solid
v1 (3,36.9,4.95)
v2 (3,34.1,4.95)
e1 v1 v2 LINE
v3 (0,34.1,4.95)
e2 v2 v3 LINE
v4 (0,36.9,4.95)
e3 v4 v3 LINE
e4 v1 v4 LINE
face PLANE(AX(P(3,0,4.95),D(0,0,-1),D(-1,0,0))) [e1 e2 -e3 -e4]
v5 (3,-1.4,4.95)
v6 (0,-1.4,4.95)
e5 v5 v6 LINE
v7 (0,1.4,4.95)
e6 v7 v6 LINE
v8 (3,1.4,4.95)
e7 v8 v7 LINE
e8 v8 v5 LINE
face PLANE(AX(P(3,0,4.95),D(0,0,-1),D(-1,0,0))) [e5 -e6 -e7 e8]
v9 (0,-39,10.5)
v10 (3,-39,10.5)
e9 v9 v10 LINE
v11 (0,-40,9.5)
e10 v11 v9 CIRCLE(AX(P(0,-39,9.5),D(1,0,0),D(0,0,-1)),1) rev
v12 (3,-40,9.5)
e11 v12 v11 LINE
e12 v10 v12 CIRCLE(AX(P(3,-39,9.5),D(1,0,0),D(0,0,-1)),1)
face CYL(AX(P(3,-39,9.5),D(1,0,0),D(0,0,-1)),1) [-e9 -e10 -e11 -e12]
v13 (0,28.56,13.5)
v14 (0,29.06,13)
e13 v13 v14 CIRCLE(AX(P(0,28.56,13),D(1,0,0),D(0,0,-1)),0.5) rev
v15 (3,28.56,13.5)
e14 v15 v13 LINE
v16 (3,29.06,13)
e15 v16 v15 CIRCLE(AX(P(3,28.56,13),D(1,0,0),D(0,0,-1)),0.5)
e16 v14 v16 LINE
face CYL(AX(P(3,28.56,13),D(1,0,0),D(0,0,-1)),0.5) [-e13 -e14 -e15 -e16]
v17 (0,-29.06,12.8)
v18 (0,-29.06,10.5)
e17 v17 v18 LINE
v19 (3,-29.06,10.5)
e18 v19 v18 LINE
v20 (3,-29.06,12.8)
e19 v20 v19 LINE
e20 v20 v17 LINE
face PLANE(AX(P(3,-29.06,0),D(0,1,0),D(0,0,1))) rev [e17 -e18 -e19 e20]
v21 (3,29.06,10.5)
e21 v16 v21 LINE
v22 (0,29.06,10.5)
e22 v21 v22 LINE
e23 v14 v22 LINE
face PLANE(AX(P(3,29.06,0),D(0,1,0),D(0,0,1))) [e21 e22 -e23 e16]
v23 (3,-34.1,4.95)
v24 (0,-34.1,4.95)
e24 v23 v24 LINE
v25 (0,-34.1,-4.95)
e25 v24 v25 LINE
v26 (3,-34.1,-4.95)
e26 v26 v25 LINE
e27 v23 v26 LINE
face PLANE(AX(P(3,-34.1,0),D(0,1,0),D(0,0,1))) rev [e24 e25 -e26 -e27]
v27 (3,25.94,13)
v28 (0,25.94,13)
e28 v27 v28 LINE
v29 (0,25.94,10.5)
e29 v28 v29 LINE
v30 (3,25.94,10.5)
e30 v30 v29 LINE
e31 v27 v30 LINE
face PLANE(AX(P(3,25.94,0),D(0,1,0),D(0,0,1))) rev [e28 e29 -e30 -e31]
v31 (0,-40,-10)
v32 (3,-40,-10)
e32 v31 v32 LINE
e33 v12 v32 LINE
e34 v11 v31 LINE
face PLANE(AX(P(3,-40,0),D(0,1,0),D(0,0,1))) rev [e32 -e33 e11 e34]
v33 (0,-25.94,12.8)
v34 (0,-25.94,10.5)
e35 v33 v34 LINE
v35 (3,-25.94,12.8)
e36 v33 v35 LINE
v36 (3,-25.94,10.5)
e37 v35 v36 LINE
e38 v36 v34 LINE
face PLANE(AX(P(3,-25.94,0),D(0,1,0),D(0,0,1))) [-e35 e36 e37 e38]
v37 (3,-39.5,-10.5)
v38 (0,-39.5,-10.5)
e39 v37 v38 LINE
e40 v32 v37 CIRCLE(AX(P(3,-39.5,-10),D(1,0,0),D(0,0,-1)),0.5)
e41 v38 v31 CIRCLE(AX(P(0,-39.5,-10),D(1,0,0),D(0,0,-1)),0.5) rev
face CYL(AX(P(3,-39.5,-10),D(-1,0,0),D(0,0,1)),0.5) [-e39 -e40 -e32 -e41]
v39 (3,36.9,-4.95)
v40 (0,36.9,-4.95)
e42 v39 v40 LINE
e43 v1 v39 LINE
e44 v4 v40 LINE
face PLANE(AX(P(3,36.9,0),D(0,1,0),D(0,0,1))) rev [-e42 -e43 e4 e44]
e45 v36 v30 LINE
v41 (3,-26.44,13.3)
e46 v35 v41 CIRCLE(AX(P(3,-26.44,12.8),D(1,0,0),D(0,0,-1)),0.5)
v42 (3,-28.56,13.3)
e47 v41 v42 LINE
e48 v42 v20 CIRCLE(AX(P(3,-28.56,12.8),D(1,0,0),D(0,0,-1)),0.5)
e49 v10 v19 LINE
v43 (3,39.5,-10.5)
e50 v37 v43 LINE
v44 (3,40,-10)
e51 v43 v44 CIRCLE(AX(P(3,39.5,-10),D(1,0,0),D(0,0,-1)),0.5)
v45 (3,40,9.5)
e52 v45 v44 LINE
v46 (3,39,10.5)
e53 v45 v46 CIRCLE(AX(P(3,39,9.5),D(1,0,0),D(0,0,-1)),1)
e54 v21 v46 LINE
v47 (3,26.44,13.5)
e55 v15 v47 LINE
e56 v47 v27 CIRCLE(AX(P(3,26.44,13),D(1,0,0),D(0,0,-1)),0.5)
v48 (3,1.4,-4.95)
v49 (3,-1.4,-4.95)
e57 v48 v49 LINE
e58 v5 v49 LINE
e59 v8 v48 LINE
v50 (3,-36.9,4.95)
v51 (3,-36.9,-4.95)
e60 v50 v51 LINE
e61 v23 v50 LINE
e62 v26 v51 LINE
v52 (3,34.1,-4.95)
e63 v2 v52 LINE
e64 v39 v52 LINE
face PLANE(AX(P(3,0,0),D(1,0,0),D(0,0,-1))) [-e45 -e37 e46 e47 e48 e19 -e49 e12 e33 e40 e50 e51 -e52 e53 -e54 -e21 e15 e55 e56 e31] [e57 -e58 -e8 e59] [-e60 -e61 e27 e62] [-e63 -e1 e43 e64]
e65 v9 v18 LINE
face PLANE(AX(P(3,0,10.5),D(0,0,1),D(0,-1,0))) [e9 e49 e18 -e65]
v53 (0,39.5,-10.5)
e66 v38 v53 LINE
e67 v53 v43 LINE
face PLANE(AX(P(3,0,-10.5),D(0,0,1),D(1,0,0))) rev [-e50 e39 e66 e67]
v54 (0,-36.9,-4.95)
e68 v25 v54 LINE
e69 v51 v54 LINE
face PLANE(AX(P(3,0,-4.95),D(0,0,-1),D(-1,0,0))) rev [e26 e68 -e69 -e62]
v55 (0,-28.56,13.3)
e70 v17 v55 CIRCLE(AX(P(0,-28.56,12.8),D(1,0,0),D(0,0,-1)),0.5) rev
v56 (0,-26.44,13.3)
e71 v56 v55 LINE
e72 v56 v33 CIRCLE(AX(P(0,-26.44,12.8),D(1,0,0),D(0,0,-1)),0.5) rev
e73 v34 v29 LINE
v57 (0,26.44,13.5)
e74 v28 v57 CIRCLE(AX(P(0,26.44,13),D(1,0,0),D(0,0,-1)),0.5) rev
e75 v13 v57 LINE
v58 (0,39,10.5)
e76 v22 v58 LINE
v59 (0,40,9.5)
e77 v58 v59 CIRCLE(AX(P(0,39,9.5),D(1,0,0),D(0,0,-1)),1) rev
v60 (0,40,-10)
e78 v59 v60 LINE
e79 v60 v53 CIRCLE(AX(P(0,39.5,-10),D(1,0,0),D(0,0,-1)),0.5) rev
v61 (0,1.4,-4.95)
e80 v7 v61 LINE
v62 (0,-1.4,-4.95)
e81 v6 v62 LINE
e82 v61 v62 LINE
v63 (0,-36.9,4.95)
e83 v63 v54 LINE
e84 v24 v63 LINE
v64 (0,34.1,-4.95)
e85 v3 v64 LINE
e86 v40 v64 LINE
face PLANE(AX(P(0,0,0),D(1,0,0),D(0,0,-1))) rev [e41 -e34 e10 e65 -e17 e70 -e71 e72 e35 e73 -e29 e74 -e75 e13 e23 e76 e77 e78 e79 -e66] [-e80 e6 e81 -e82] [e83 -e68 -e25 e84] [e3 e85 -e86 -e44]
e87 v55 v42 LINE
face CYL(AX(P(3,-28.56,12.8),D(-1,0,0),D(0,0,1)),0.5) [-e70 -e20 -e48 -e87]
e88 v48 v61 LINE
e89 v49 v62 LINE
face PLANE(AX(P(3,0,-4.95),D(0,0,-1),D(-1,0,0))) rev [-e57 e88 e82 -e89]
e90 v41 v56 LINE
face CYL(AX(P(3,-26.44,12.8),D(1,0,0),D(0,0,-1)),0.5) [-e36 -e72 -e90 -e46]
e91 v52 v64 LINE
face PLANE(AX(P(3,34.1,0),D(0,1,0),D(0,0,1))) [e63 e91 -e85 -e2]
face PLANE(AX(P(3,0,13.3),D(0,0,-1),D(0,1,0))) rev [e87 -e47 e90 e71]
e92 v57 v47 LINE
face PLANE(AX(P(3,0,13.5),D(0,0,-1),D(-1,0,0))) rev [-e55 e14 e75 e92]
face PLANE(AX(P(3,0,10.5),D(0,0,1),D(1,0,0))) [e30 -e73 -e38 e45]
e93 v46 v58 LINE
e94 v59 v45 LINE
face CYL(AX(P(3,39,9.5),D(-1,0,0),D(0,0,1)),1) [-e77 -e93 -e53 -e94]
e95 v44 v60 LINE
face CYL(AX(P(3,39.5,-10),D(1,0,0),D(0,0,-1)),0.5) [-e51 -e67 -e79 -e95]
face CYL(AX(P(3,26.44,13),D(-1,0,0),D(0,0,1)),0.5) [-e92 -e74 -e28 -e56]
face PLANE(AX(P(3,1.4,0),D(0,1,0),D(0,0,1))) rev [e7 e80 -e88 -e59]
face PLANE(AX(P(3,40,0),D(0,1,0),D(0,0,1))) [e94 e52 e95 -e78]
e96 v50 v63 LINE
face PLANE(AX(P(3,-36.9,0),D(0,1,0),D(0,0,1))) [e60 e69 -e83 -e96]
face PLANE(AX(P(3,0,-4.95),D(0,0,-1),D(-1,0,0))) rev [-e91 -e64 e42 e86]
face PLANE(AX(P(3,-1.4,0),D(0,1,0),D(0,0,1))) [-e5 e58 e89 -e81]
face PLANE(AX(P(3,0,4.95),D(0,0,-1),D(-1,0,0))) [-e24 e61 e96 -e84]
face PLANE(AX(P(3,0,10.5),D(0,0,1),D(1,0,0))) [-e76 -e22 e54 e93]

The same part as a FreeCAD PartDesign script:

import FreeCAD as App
import Part
import Sketcher

V = App.Vector


def edges_at(feature, points):
    """Names of the edges that pass closest to the given points."""
    edges = feature.Shape.Edges
    near = lambda p: min(range(len(edges)), key=lambda i: edges[i].distToShape(Part.Vertex(*p))[0])
    return sorted({f"Edge{near(p) + 1}" for p in points})


def add_polygon(sketch, points):
    """Adds a closed chain of lines whose ends are joined by coincident constraints."""
    first, n = sketch.GeometryCount, len(points)
    for a, b in zip(points, points[1:] + points[:1]):
        sketch.addGeometry(Part.LineSegment(App.Vector(*a, 0), App.Vector(*b, 0)), False)
    for i in range(n):
        sketch.addConstraint(Sketcher.Constraint("Coincident", first + i, 2, first + (i + 1) % n, 1))

doc = App.newDocument("Part")
body = doc.addObject("PartDesign::Body", "Body")

sketch1 = body.newObject("Sketcher::SketchObject", "Sketch")
sketch1.AttachmentSupport = (doc.getObject("YZ_Plane"), [""])
sketch1.MapMode = "FlatFace"
add_polygon(sketch1, [(-25.9, 13.3), (-29.1, 13.3), (-29.1, 10.5), (-40, 10.5), (-40, -10.5), (40, -10.5), (40, 10.5), (29.1, 10.5), (29.1, 13.5), (25.9, 13.5), (25.9, 10.5), (-25.9, 10.5)])
add_polygon(sketch1, [(-36.9, -5), (-36.9, 5), (-34.1, 5), (-34.1, -5)])
add_polygon(sketch1, [(-1.4, -5), (-1.4, 5), (1.4, 5), (1.4, -5)])
add_polygon(sketch1, [(34.1, -5), (34.1, 5), (36.9, 5), (36.9, -5)])
sketch1.addConstraint([
    Sketcher.Constraint("Horizontal", 0),
    Sketcher.Constraint("Vertical", 1),
    Sketcher.Constraint("Horizontal", 2),
    Sketcher.Constraint("Vertical", 3),
    Sketcher.Constraint("Horizontal", 4),
    Sketcher.Constraint("Vertical", 5),
    Sketcher.Constraint("Horizontal", 6),
    Sketcher.Constraint("Vertical", 7),
    Sketcher.Constraint("Horizontal", 8),
    Sketcher.Constraint("Vertical", 9),
    Sketcher.Constraint("Horizontal", 10),
    Sketcher.Constraint("Vertical", 11),
    Sketcher.Constraint("Vertical", 12),
    Sketcher.Constraint("Horizontal", 13),
    Sketcher.Constraint("Vertical", 14),
    Sketcher.Constraint("Horizontal", 15),
    Sketcher.Constraint("Vertical", 16),
    Sketcher.Constraint("Horizontal", 17),
    Sketcher.Constraint("Vertical", 18),
    Sketcher.Constraint("Horizontal", 19),
    Sketcher.Constraint("Vertical", 20),
    Sketcher.Constraint("Horizontal", 21),
    Sketcher.Constraint("Vertical", 22),
    Sketcher.Constraint("Horizontal", 23),
    Sketcher.Constraint("Symmetric", 2, 2, 4, 2, -1, 1),
    Sketcher.Constraint("Symmetric", 16, 2, 18, 2, -1, 1),
    Sketcher.Constraint("Symmetric", 14, 2, 20, 2, -1, 1),
    Sketcher.Constraint("Symmetric", 12, 2, 22, 2, -1, 1),
    Sketcher.Constraint("Symmetric", 1, 2, 6, 2, -2),
    Sketcher.Constraint("Horizontal", 6, 2, 9, 2),
    Sketcher.Constraint("Horizontal", 13, 2, 16, 2),
    Sketcher.Constraint("Horizontal", 15, 2, 18, 2),
    Sketcher.Constraint("Equal", 0, 8),
    Sketcher.Constraint("Equal", 15, 17),
    Sketcher.Constraint("Equal", 23, 1),
    Sketcher.Constraint("DistanceX", 4, 1, 4, 2, 80.0),
    Sketcher.Constraint("DistanceY", 3, 2, 3, 1, 21.0),
    Sketcher.Constraint("DistanceY", 7, 1, 7, 2, 3.0),
    Sketcher.Constraint("DistanceX", 13, 1, 13, 2, 2.8),
    Sketcher.Constraint("DistanceY", 12, 1, 12, 2, 9.9),
    Sketcher.Constraint("DistanceX", 0, 2, 8, 2, 55.0),
    Sketcher.Constraint("DistanceX", 0, 2, 0, 1, 3.12),
    Sketcher.Constraint("DistanceX", 12, 2, -1, 1, 36.9),
])
pad1 = body.newObject("PartDesign::Pad", "Pad")
pad1.Profile = sketch1
pad1.Length = 3
doc.recompute()

fillet = body.newObject("PartDesign::Fillet", "Fillet")
fillet.Base = (pad1, edges_at(pad1, [(1.5, 40, 10.5), (1.5, -40, 10.5)]))
fillet.Radius = 1
doc.recompute()

fillet2 = body.newObject("PartDesign::Fillet", "Fillet001")
fillet2.Base = (fillet, edges_at(fillet, [
    (1.5, -25.94, 13.3),
    (1.5, 25.94, 13.5),
    (1.5, 29.06, 13.5),
    (1.5, 40, -10.5),
    (1.5, -40, -10.5),
    (1.5, -29.06, 13.3),
]))
fillet2.Radius = 0.5

doc.recompute()
